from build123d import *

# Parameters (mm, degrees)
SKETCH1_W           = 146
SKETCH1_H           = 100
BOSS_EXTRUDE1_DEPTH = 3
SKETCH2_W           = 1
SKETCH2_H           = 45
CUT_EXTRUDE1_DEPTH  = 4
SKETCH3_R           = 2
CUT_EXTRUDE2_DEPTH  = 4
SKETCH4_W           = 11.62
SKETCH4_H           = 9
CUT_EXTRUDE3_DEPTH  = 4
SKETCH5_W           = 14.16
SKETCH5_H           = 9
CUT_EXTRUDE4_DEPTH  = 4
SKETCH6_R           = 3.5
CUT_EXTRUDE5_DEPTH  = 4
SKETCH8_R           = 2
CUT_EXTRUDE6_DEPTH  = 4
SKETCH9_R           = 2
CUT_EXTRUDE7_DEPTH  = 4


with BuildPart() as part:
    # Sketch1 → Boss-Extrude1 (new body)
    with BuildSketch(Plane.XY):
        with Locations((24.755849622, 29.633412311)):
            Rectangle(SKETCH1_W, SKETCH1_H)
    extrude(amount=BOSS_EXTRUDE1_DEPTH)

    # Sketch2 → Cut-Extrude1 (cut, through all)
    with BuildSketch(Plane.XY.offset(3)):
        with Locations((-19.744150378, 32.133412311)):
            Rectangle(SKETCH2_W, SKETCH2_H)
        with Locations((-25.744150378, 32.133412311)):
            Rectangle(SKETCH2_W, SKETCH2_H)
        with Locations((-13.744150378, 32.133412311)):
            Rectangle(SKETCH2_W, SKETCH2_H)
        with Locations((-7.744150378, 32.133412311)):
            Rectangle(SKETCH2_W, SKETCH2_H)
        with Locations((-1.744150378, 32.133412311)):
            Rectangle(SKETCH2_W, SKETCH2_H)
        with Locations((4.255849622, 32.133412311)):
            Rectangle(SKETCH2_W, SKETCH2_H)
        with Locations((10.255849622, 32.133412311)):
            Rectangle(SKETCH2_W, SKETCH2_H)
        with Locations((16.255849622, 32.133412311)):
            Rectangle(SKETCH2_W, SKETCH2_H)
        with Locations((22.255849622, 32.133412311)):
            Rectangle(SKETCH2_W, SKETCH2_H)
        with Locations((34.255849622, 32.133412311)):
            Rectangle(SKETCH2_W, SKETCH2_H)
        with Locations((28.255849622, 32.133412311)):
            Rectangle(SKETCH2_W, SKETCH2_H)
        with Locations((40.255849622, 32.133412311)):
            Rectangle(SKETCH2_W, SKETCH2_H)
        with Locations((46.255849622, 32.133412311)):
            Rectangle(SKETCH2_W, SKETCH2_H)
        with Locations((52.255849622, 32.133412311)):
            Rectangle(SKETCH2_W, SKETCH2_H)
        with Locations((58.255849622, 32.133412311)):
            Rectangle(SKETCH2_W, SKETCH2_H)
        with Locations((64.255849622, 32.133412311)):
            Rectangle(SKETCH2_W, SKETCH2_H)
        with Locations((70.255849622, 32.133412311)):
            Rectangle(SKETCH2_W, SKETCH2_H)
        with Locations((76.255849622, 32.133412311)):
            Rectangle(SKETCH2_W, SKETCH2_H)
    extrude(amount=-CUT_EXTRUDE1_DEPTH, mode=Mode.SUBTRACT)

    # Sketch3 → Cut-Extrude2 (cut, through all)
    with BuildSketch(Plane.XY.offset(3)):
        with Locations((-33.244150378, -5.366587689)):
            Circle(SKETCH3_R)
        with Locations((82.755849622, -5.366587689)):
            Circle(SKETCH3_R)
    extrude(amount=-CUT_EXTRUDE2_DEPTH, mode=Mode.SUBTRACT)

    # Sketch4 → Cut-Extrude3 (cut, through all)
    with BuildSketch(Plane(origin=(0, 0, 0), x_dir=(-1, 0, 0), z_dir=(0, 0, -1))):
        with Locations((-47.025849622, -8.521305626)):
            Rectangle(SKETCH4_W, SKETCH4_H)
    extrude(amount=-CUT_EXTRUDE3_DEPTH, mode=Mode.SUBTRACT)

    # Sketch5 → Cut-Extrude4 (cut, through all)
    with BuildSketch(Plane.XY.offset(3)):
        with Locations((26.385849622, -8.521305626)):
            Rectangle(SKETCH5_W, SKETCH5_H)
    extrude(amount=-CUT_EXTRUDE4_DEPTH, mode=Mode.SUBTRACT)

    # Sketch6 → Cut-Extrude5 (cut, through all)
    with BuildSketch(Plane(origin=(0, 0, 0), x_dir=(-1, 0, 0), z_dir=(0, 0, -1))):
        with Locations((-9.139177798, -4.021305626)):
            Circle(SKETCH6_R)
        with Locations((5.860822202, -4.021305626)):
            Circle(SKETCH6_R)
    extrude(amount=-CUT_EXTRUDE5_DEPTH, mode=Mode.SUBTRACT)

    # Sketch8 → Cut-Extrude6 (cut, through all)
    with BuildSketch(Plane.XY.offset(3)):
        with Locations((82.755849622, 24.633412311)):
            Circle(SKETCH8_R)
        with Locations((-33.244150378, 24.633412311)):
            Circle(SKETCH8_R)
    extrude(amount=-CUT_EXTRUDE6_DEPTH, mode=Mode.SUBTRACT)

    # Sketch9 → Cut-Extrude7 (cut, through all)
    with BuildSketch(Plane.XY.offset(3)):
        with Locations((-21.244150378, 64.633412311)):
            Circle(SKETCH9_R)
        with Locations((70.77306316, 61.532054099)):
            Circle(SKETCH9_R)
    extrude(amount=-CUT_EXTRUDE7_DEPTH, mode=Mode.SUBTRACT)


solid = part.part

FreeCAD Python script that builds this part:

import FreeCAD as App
import Part
import Sketcher
from FreeCAD import Vector


def add_polygon(sketch, points):
    """Adds a closed chain of lines whose ends are joined by coincident constraints."""
    first, n = sketch.GeometryCount, len(points)
    for a, b in zip(points, points[1:] + points[:1]):
        sketch.addGeometry(Part.LineSegment(App.Vector(*a, 0), App.Vector(*b, 0)), False)
    for i in range(n):
        sketch.addConstraint(Sketcher.Constraint("Coincident", first + i, 2, first + (i + 1) % n, 1))

doc = App.newDocument("Part")
params = doc.addObject("Spreadsheet::Sheet", "Params")
for row, (alias, value) in enumerate([
    ("sketch1_width", "146 mm"),
    ("sketch1_height", "100 mm"),
    ("pad1_length", "3 mm"),
    ("sketch2_width", "1 mm"),
    ("sketch2_height", "45 mm"),
    ("sketch3_diameter", "4 mm"),
    ("sketch4_height", "9 mm"),
    ("sketch4_width", "11.62 mm"),
    ("sketch5_height", "9 mm"),
    ("sketch5_width", "14.16 mm"),
    ("sketch6_diameter", "7 mm"),
    ("sketch7_diameter", "4 mm"),
    ("sketch8_diameter", "4 mm"),
], start=1):
    params.set(f"A{row}", alias)
    params.set(f"B{row}", "=" + value)
    params.setAlias(f"B{row}", alias)

body = doc.addObject("PartDesign::Body", "Body")

sketch1 = body.newObject("Sketcher::SketchObject", "Sketch")
sketch1.AttachmentSupport = (doc.getObject("XY_Plane"), [""])
sketch1.MapMode = "FlatFace"
add_polygon(sketch1, [(-48, 80), (-48, -20), (98, -20), (98, 80)])
sketch1.addConstraint(Sketcher.Constraint("Vertical", 0))
sketch1.addConstraint(Sketcher.Constraint("Horizontal", 1))
sketch1.addConstraint(Sketcher.Constraint("Vertical", 2))
sketch1.addConstraint(Sketcher.Constraint("Horizontal", 3))
sketch1.addConstraint(Sketcher.Constraint("DistanceX", 1, 1, 1, 2, 146.0))
sketch1.addConstraint(Sketcher.Constraint("DistanceY", 0, 2, 0, 1, 100.0))
sketch1.addConstraint(Sketcher.Constraint("DistanceX", 0, 2, -1, 1, 48.24415))
sketch1.addConstraint(Sketcher.Constraint("DistanceY", 0, 2, -1, 1, 20.366588))
sketch1.setExpression("Constraints[8]", "Params.sketch1_width")
sketch1.setExpression("Constraints[9]", "Params.sketch1_height")
pad1 = body.newObject("PartDesign::Pad", "Pad")
pad1.Profile = sketch1
pad1.setExpression("Length", "Params.pad1_length")

sketch2 = body.newObject("Sketcher::SketchObject", "Sketch001")
sketch2.AttachmentSupport = (doc.getObject("XY_Plane"), [""])
sketch2.MapMode = "FlatFace"
sketch2.AttachmentOffset = App.Placement(Vector(0, 0, 3), App.Rotation())
add_polygon(sketch2, [(-20.2, 54.6), (-20.2, 9.6), (-19.2, 9.6), (-19.2, 54.6)])
add_polygon(sketch2, [(-26.2, 54.6), (-26.2, 9.6), (-25.2, 9.6), (-25.2, 54.6)])
add_polygon(sketch2, [(-14.2, 54.6), (-14.2, 9.6), (-13.2, 9.6), (-13.2, 54.6)])
add_polygon(sketch2, [(-8.2, 54.6), (-8.2, 9.6), (-7.2, 9.6), (-7.2, 54.6)])
add_polygon(sketch2, [(-2.2, 54.6), (-2.2, 9.6), (-1.2, 9.6), (-1.2, 54.6)])
add_polygon(sketch2, [(3.8, 54.6), (3.8, 9.6), (4.8, 9.6), (4.8, 54.6)])
add_polygon(sketch2, [(9.8, 54.6), (9.8, 9.6), (10.8, 9.6), (10.8, 54.6)])
add_polygon(sketch2, [(15.8, 54.6), (15.8, 9.6), (16.8, 9.6), (16.8, 54.6)])
add_polygon(sketch2, [(21.8, 54.6), (21.8, 9.6), (22.8, 9.6), (22.8, 54.6)])
add_polygon(sketch2, [(33.8, 54.6), (33.8, 9.6), (34.8, 9.6), (34.8, 54.6)])
add_polygon(sketch2, [(27.8, 54.6), (27.8, 9.6), (28.8, 9.6), (28.8, 54.6)])
add_polygon(sketch2, [(39.8, 54.6), (39.8, 9.6), (40.8, 9.6), (40.8, 54.6)])
add_polygon(sketch2, [(45.8, 54.6), (45.8, 9.6), (46.8, 9.6), (46.8, 54.6)])
add_polygon(sketch2, [(51.8, 54.6), (51.8, 9.6), (52.8, 9.6), (52.8, 54.6)])
add_polygon(sketch2, [(57.8, 54.6), (57.8, 9.6), (58.8, 9.6), (58.8, 54.6)])
add_polygon(sketch2, [(63.8, 54.6), (63.8, 9.6), (64.8, 9.6), (64.8, 54.6)])
add_polygon(sketch2, [(69.8, 54.6), (69.8, 9.6), (70.8, 9.6), (70.8, 54.6)])
add_polygon(sketch2, [(75.8, 54.6), (75.8, 9.6), (76.8, 9.6), (76.8, 54.6)])
sketch2.addConstraint(Sketcher.Constraint("Vertical", 0))
sketch2.addConstraint(Sketcher.Constraint("Horizontal", 1))
sketch2.addConstraint(Sketcher.Constraint("Vertical", 2))
sketch2.addConstraint(Sketcher.Constraint("Horizontal", 3))
sketch2.addConstraint(Sketcher.Constraint("Vertical", 4))
sketch2.addConstraint(Sketcher.Constraint("Horizontal", 5))
sketch2.addConstraint(Sketcher.Constraint("Vertical", 6))
sketch2.addConstraint(Sketcher.Constraint("Horizontal", 7))
sketch2.addConstraint(Sketcher.Constraint("Vertical", 8))
sketch2.addConstraint(Sketcher.Constraint("Horizontal", 9))
sketch2.addConstraint(Sketcher.Constraint("Vertical", 10))
sketch2.addConstraint(Sketcher.Constraint("Horizontal", 11))
sketch2.addConstraint(Sketcher.Constraint("Vertical", 12))
sketch2.addConstraint(Sketcher.Constraint("Horizontal", 13))
sketch2.addConstraint(Sketcher.Constraint("Vertical", 14))
sketch2.addConstraint(Sketcher.Constraint("Horizontal", 15))
sketch2.addConstraint(Sketcher.Constraint("Vertical", 16))
sketch2.addConstraint(Sketcher.Constraint("Horizontal", 17))
sketch2.addConstraint(Sketcher.Constraint("Vertical", 18))
sketch2.addConstraint(Sketcher.Constraint("Horizontal", 19))
sketch2.addConstraint(Sketcher.Constraint("Vertical", 20))
sketch2.addConstraint(Sketcher.Constraint("Horizontal", 21))
sketch2.addConstraint(Sketcher.Constraint("Vertical", 22))
sketch2.addConstraint(Sketcher.Constraint("Horizontal", 23))
sketch2.addConstraint(Sketcher.Constraint("Vertical", 24))
sketch2.addConstraint(Sketcher.Constraint("Horizontal", 25))
sketch2.addConstraint(Sketcher.Constraint("Vertical", 26))
sketch2.addConstraint(Sketcher.Constraint("Horizontal", 27))
sketch2.addConstraint(Sketcher.Constraint("Vertical", 28))
sketch2.addConstraint(Sketcher.Constraint("Horizontal", 29))
sketch2.addConstraint(Sketcher.Constraint("Vertical", 30))
sketch2.addConstraint(Sketcher.Constraint("Horizontal", 31))
sketch2.addConstraint(Sketcher.Constraint("Vertical", 32))
sketch2.addConstraint(Sketcher.Constraint("Horizontal", 33))
sketch2.addConstraint(Sketcher.Constraint("Vertical", 34))
sketch2.addConstraint(Sketcher.Constraint("Horizontal", 35))
sketch2.addConstraint(Sketcher.Constraint("Vertical", 36))
sketch2.addConstraint(Sketcher.Constraint("Horizontal", 37))
sketch2.addConstraint(Sketcher.Constraint("Vertical", 38))
sketch2.addConstraint(Sketcher.Constraint("Horizontal", 39))
sketch2.addConstraint(Sketcher.Constraint("Vertical", 40))
sketch2.addConstraint(Sketcher.Constraint("Horizontal", 41))
sketch2.addConstraint(Sketcher.Constraint("Vertical", 42))
sketch2.addConstraint(Sketcher.Constraint("Horizontal", 43))
sketch2.addConstraint(Sketcher.Constraint("Vertical", 44))
sketch2.addConstraint(Sketcher.Constraint("Horizontal", 45))
sketch2.addConstraint(Sketcher.Constraint("Vertical", 46))
sketch2.addConstraint(Sketcher.Constraint("Horizontal", 47))
sketch2.addConstraint(Sketcher.Constraint("Vertical", 48))
sketch2.addConstraint(Sketcher.Constraint("Horizontal", 49))
sketch2.addConstraint(Sketcher.Constraint("Vertical", 50))
sketch2.addConstraint(Sketcher.Constraint("Horizontal", 51))
sketch2.addConstraint(Sketcher.Constraint("Vertical", 52))
sketch2.addConstraint(Sketcher.Constraint("Horizontal", 53))
sketch2.addConstraint(Sketcher.Constraint("Vertical", 54))
sketch2.addConstraint(Sketcher.Constraint("Horizontal", 55))
sketch2.addConstraint(Sketcher.Constraint("Vertical", 56))
sketch2.addConstraint(Sketcher.Constraint("Horizontal", 57))
sketch2.addConstraint(Sketcher.Constraint("Vertical", 58))
sketch2.addConstraint(Sketcher.Constraint("Horizontal", 59))
sketch2.addConstraint(Sketcher.Constraint("Vertical", 60))
sketch2.addConstraint(Sketcher.Constraint("Horizontal", 61))
sketch2.addConstraint(Sketcher.Constraint("Vertical", 62))
sketch2.addConstraint(Sketcher.Constraint("Horizontal", 63))
sketch2.addConstraint(Sketcher.Constraint("Vertical", 64))
sketch2.addConstraint(Sketcher.Constraint("Horizontal", 65))
sketch2.addConstraint(Sketcher.Constraint("Vertical", 66))
sketch2.addConstraint(Sketcher.Constraint("Horizontal", 67))
sketch2.addConstraint(Sketcher.Constraint("Vertical", 68))
sketch2.addConstraint(Sketcher.Constraint("Horizontal", 69))
sketch2.addConstraint(Sketcher.Constraint("Vertical", 70))
sketch2.addConstraint(Sketcher.Constraint("Horizontal", 71))
sketch2.addConstraint(Sketcher.Constraint("Horizontal", 1, 2, 4, 2))
sketch2.addConstraint(Sketcher.Constraint("Horizontal", 3, 2, 6, 2))
sketch2.addConstraint(Sketcher.Constraint("Horizontal", 5, 2, 8, 2))
sketch2.addConstraint(Sketcher.Constraint("Horizontal", 7, 2, 10, 2))
sketch2.addConstraint(Sketcher.Constraint("Horizontal", 9, 2, 12, 2))
sketch2.addConstraint(Sketcher.Constraint("Horizontal", 11, 2, 14, 2))
sketch2.addConstraint(Sketcher.Constraint("Horizontal", 13, 2, 16, 2))
sketch2.addConstraint(Sketcher.Constraint("Horizontal", 15, 2, 18, 2))
sketch2.addConstraint(Sketcher.Constraint("Horizontal", 17, 2, 20, 2))
sketch2.addConstraint(Sketcher.Constraint("Horizontal", 19, 2, 22, 2))
sketch2.addConstraint(Sketcher.Constraint("Horizontal", 21, 2, 24, 2))
sketch2.addConstraint(Sketcher.Constraint("Horizontal", 23, 2, 26, 2))
sketch2.addConstraint(Sketcher.Constraint("Horizontal", 25, 2, 28, 2))
sketch2.addConstraint(Sketcher.Constraint("Horizontal", 27, 2, 30, 2))
sketch2.addConstraint(Sketcher.Constraint("Horizontal", 29, 2, 32, 2))
sketch2.addConstraint(Sketcher.Constraint("Horizontal", 31, 2, 34, 2))
sketch2.addConstraint(Sketcher.Constraint("Horizontal", 33, 2, 36, 2))
sketch2.addConstraint(Sketcher.Constraint("Horizontal", 35, 2, 38, 2))
sketch2.addConstraint(Sketcher.Constraint("Horizontal", 37, 2, 40, 2))
sketch2.addConstraint(Sketcher.Constraint("Horizontal", 39, 2, 42, 2))
sketch2.addConstraint(Sketcher.Constraint("Horizontal", 41, 2, 44, 2))
sketch2.addConstraint(Sketcher.Constraint("Horizontal", 43, 2, 46, 2))
sketch2.addConstraint(Sketcher.Constraint("Horizontal", 45, 2, 48, 2))
sketch2.addConstraint(Sketcher.Constraint("Horizontal", 47, 2, 50, 2))
sketch2.addConstraint(Sketcher.Constraint("Horizontal", 49, 2, 52, 2))
sketch2.addConstraint(Sketcher.Constraint("Horizontal", 51, 2, 54, 2))
sketch2.addConstraint(Sketcher.Constraint("Horizontal", 53, 2, 56, 2))
sketch2.addConstraint(Sketcher.Constraint("Horizontal", 55, 2, 58, 2))
sketch2.addConstraint(Sketcher.Constraint("Horizontal", 57, 2, 60, 2))
sketch2.addConstraint(Sketcher.Constraint("Horizontal", 59, 2, 62, 2))
sketch2.addConstraint(Sketcher.Constraint("Horizontal", 61, 2, 64, 2))
sketch2.addConstraint(Sketcher.Constraint("Horizontal", 63, 2, 66, 2))
sketch2.addConstraint(Sketcher.Constraint("Horizontal", 65, 2, 68, 2))
sketch2.addConstraint(Sketcher.Constraint("Horizontal", 67, 2, 70, 2))
sketch2.addConstraint(Sketcher.Constraint("Equal", 3, 5))
sketch2.addConstraint(Sketcher.Constraint("Equal", 7, 9))
sketch2.addConstraint(Sketcher.Constraint("Equal", 11, 13))
sketch2.addConstraint(Sketcher.Constraint("Equal", 15, 17))
sketch2.addConstraint(Sketcher.Constraint("Equal", 19, 21))
sketch2.addConstraint(Sketcher.Constraint("Equal", 23, 25))
sketch2.addConstraint(Sketcher.Constraint("Equal", 27, 29))
sketch2.addConstraint(Sketcher.Constraint("Equal", 31, 33))
sketch2.addConstraint(Sketcher.Constraint("Equal", 35, 37))
sketch2.addConstraint(Sketcher.Constraint("Equal", 39, 41))
sketch2.addConstraint(Sketcher.Constraint("Equal", 43, 45))
sketch2.addConstraint(Sketcher.Constraint("Equal", 47, 49))
sketch2.addConstraint(Sketcher.Constraint("Equal", 51, 53))
sketch2.addConstraint(Sketcher.Constraint("Equal", 55, 57))
sketch2.addConstraint(Sketcher.Constraint("Equal", 59, 61))
sketch2.addConstraint(Sketcher.Constraint("Equal", 63, 65))
sketch2.addConstraint(Sketcher.Constraint("Equal", 67, 69))
sketch2.addConstraint(Sketcher.Constraint("DistanceX", 1, 1, 1, 2, 1.0))
sketch2.addConstraint(Sketcher.Constraint("DistanceY", 0, 2, 0, 1, 45.0))
sketch2.addConstraint(Sketcher.Constraint("DistanceX", 0, 2, -1, 1, 20.24415))
sketch2.addConstraint(Sketcher.Constraint("DistanceX", 4, 2, -1, 1, 26.24415))
sketch2.addConstraint(Sketcher.Constraint("DistanceX", 8, 2, -1, 1, 14.24415))
sketch2.addConstraint(Sketcher.Constraint("DistanceX", 12, 2, -1, 1, 8.24415))
sketch2.addConstraint(Sketcher.Constraint("DistanceX", 16, 2, -1, 1, 2.24415))
sketch2.addConstraint(Sketcher.Constraint("DistanceX", -1, 1, 20, 2, 3.75585))
sketch2.addConstraint(Sketcher.Constraint("DistanceX", -1, 1, 24, 2, 9.75585))
sketch2.addConstraint(Sketcher.Constraint("DistanceX", -1, 1, 28, 2, 15.75585))
sketch2.addConstraint(Sketcher.Constraint("DistanceX", -1, 1, 32, 2, 21.75585))
sketch2.addConstraint(Sketcher.Constraint("DistanceX", -1, 1, 36, 2, 33.75585))
sketch2.addConstraint(Sketcher.Constraint("DistanceX", -1, 1, 40, 2, 27.75585))
sketch2.addConstraint(Sketcher.Constraint("DistanceX", -1, 1, 44, 2, 39.75585))
sketch2.addConstraint(Sketcher.Constraint("DistanceX", -1, 1, 48, 2, 45.75585))
sketch2.addConstraint(Sketcher.Constraint("DistanceX", -1, 1, 52, 2, 51.75585))
sketch2.addConstraint(Sketcher.Constraint("DistanceX", -1, 1, 56, 2, 57.75585))
sketch2.addConstraint(Sketcher.Constraint("DistanceX", -1, 1, 60, 2, 63.75585))
sketch2.addConstraint(Sketcher.Constraint("DistanceX", -1, 1, 64, 2, 69.75585))
sketch2.addConstraint(Sketcher.Constraint("DistanceX", -1, 1, 68, 2, 75.75585))
sketch2.addConstraint(Sketcher.Constraint("DistanceY", -1, 1, 0, 2, 9.633412))
sketch2.setExpression("Constraints[195]", "Params.sketch2_width")
sketch2.setExpression("Constraints[196]", "Params.sketch2_height")
pocket1 = body.newObject("PartDesign::Pocket", "Pocket")
pocket1.Profile = sketch2
pocket1.Type = "ThroughAll"

sketch3 = body.newObject("Sketcher::SketchObject", "Sketch002")
sketch3.AttachmentSupport = (doc.getObject("XY_Plane"), [""])
sketch3.MapMode = "FlatFace"
sketch3.AttachmentOffset = App.Placement(Vector(0, 0, 3), App.Rotation())
sketch3.addGeometry(Part.Circle(Vector(-33.2, -5.4, 0), Vector(0, 0, 1), 2), False)
sketch3.addGeometry(Part.Circle(Vector(82.8, -5.4, 0), Vector(0, 0, 1), 2), False)
sketch3.addConstraint(Sketcher.Constraint("Equal", 0, 1))
sketch3.addConstraint(Sketcher.Constraint("Horizontal", 0, 3, 1, 3))
sketch3.addConstraint(Sketcher.Constraint("Diameter", 0, 4.0))
sketch3.addConstraint(Sketcher.Constraint("DistanceX", 0, 3, 1, 3, 116.0))
sketch3.addConstraint(Sketcher.Constraint("DistanceX", 0, 3, -1, 1, 33.24415))
sketch3.addConstraint(Sketcher.Constraint("DistanceY", 0, 3, -1, 1, 5.366588))
sketch3.setExpression("Constraints[2]", "Params.sketch3_diameter")
pocket2 = body.newObject("PartDesign::Pocket", "Pocket001")
pocket2.Profile = sketch3
pocket2.Type = "ThroughAll"

sketch4 = body.newObject("Sketcher::SketchObject", "Sketch003")
sketch4.AttachmentSupport = (doc.getObject("XY_Plane"), [""])
sketch4.MapMode = "FlatFace"
add_polygon(sketch4, [(53, -4), (53, -13), (41, -13), (41, -4)])
sketch4.addConstraint(Sketcher.Constraint("Vertical", 0))
sketch4.addConstraint(Sketcher.Constraint("Horizontal", 1))
sketch4.addConstraint(Sketcher.Constraint("Vertical", 2))
sketch4.addConstraint(Sketcher.Constraint("Horizontal", 3))
sketch4.addConstraint(Sketcher.Constraint("DistanceY", 0, 2, 0, 1, 9.0))
sketch4.addConstraint(Sketcher.Constraint("DistanceX", 1, 2, 1, 1, 11.62))
sketch4.addConstraint(Sketcher.Constraint("DistanceX", -1, 1, 0, 2, 52.83585))
sketch4.addConstraint(Sketcher.Constraint("DistanceY", 0, 2, -1, 1, 13.021306))
sketch4.setExpression("Constraints[8]", "Params.sketch4_height")
sketch4.setExpression("Constraints[9]", "Params.sketch4_width")
pocket3 = body.newObject("PartDesign::Pocket", "Pocket002")
pocket3.Profile = sketch4
pocket3.Type = "ThroughAll"
pocket3.Reversed = True

sketch5 = body.newObject("Sketcher::SketchObject", "Sketch004")
sketch5.AttachmentSupport = (doc.getObject("XY_Plane"), [""])
sketch5.MapMode = "FlatFace"
sketch5.AttachmentOffset = App.Placement(Vector(0, 0, 3), App.Rotation())
add_polygon(sketch5, [(19, -4), (19, -13), (33, -13), (33, -4)])
sketch5.addConstraint(Sketcher.Constraint("Vertical", 0))
sketch5.addConstraint(Sketcher.Constraint("Horizontal", 1))
sketch5.addConstraint(Sketcher.Constraint("Vertical", 2))
sketch5.addConstraint(Sketcher.Constraint("Horizontal", 3))
sketch5.addConstraint(Sketcher.Constraint("DistanceY", 0, 2, 0, 1, 9.0))
sketch5.addConstraint(Sketcher.Constraint("DistanceX", 1, 1, 1, 2, 14.16))
sketch5.addConstraint(Sketcher.Constraint("DistanceX", -1, 1, 0, 2, 19.30585))
sketch5.addConstraint(Sketcher.Constraint("DistanceY", 0, 2, -1, 1, 13.021306))
sketch5.setExpression("Constraints[8]", "Params.sketch5_height")
sketch5.setExpression("Constraints[9]", "Params.sketch5_width")
pocket4 = body.newObject("PartDesign::Pocket", "Pocket003")
pocket4.Profile = sketch5
pocket4.Type = "ThroughAll"

sketch6 = body.newObject("Sketcher::SketchObject", "Sketch005")
sketch6.AttachmentSupport = (doc.getObject("XY_Plane"), [""])
sketch6.MapMode = "FlatFace"
sketch6.addGeometry(Part.Circle(Vector(9.1, -4, 0), Vector(0, 0, 1), 3.5), False)
sketch6.addGeometry(Part.Circle(Vector(-5.9, -4, 0), Vector(0, 0, 1), 3.5), False)
sketch6.addConstraint(Sketcher.Constraint("Equal", 0, 1))
sketch6.addConstraint(Sketcher.Constraint("Horizontal", 0, 3, 1, 3))
sketch6.addConstraint(Sketcher.Constraint("Diameter", 0, 7.0))
sketch6.addConstraint(Sketcher.Constraint("DistanceX", 1, 3, 0, 3, 15.0))
sketch6.addConstraint(Sketcher.Constraint("DistanceX", -1, 1, 0, 3, 9.139178))
sketch6.addConstraint(Sketcher.Constraint("DistanceY", 0, 3, -1, 1, 4.021306))
sketch6.setExpression("Constraints[2]", "Params.sketch6_diameter")
pocket5 = body.newObject("PartDesign::Pocket", "Pocket004")
pocket5.Profile = sketch6
pocket5.Type = "ThroughAll"
pocket5.Reversed = True

sketch7 = body.newObject("Sketcher::SketchObject", "Sketch006")
sketch7.AttachmentSupport = (doc.getObject("XY_Plane"), [""])
sketch7.MapMode = "FlatFace"
sketch7.AttachmentOffset = App.Placement(Vector(0, 0, 3), App.Rotation())
sketch7.addGeometry(Part.Circle(Vector(82.8, 24.6, 0), Vector(0, 0, 1), 2), False)
sketch7.addGeometry(Part.Circle(Vector(-33.2, 24.6, 0), Vector(0, 0, 1), 2), False)
sketch7.addConstraint(Sketcher.Constraint("Equal", 0, 1))
sketch7.addConstraint(Sketcher.Constraint("Horizontal", 0, 3, 1, 3))
sketch7.addConstraint(Sketcher.Constraint("Diameter", 0, 4.0))
sketch7.addConstraint(Sketcher.Constraint("DistanceX", 1, 3, 0, 3, 116.0))
sketch7.addConstraint(Sketcher.Constraint("DistanceX", -1, 1, 0, 3, 82.75585))
sketch7.addConstraint(Sketcher.Constraint("DistanceY", -1, 1, 0, 3, 24.633412))
sketch7.setExpression("Constraints[2]", "Params.sketch7_diameter")
pocket6 = body.newObject("PartDesign::Pocket", "Pocket005")
pocket6.Profile = sketch7
pocket6.Type = "ThroughAll"

sketch8 = body.newObject("Sketcher::SketchObject", "Sketch007")
sketch8.AttachmentSupport = (doc.getObject("XY_Plane"), [""])
sketch8.MapMode = "FlatFace"
sketch8.AttachmentOffset = App.Placement(Vector(0, 0, 3), App.Rotation())
sketch8.addGeometry(Part.Circle(Vector(-21.2, 64.6, 0), Vector(0, 0, 1), 2), False)
sketch8.addGeometry(Part.Circle(Vector(70.8, 61.5, 0), Vector(0, 0, 1), 2), False)
sketch8.addConstraint(Sketcher.Constraint("Equal", 0, 1))
sketch8.addConstraint(Sketcher.Constraint("Diameter", 0, 4.0))
sketch8.addConstraint(Sketcher.Constraint("DistanceX", 0, 3, -1, 1, 21.24415))
sketch8.addConstraint(Sketcher.Constraint("DistanceY", 1, 3, 0, 3, 3.101358))
sketch8.addConstraint(Sketcher.Constraint("DistanceY", -1, 1, 0, 3, 64.633412))
sketch8.addConstraint(Sketcher.Constraint("DistanceX", -1, 1, 1, 3, 70.773063))
sketch8.setExpression("Constraints[1]", "Params.sketch8_diameter")
pocket7 = body.newObject("PartDesign::Pocket", "Pocket006")
pocket7.Profile = sketch8
pocket7.Type = "ThroughAll"

doc.recompute()
